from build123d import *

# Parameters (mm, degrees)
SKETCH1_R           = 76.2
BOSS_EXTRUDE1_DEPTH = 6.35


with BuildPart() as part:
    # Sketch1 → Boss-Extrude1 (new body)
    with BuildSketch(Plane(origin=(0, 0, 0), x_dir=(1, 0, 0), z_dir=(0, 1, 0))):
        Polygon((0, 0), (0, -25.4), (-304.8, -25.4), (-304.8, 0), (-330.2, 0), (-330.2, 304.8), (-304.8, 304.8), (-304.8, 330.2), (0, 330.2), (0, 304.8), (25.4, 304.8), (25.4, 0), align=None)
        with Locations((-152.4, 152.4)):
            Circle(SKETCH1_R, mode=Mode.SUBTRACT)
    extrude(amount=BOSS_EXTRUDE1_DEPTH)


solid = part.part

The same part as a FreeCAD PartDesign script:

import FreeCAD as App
import Part
import Sketcher

V = App.Vector
Q = App.Units.Quantity

doc = App.newDocument("Part")
body = doc.addObject("PartDesign::Body", "Body")

# Sketch on XZ plane
sketch1 = body.newObject("Sketcher::SketchObject", "Sketch")
sketch1.AttachmentSupport = (doc.getObject("XZ_Plane"), [""])
sketch1.MapMode = "FlatFace"
sketch1.addGeometry([
    Part.LineSegment(V(0, 25, 0), V(0, 0, 0)),  # 0
    Part.LineSegment(V(0, 0, 0), V(25, 0, 0)),  # 1
    Part.LineSegment(V(25, 0, 0), V(25, -305, 0)),  # 2
    Part.LineSegment(V(25, -305, 0), V(0, -305, 0)),  # 3
    Part.LineSegment(V(0, -305, 0), V(0, -330, 0)),  # 4
    Part.LineSegment(V(0, -330, 0), V(-305, -330, 0)),  # 5
    Part.LineSegment(V(-305, -330, 0), V(-305, -305, 0)),  # 6
    Part.LineSegment(V(-305, -305, 0), V(-330, -305, 0)),  # 7
    Part.LineSegment(V(-330, -305, 0), V(-330, 0, 0)),  # 8
    Part.LineSegment(V(-330, 0, 0), V(-305, 0, 0)),  # 9
    Part.LineSegment(V(-305, 0, 0), V(-305, 25, 0)),  # 10
    Part.LineSegment(V(-305, 25, 0), V(0, 25, 0)),  # 11
    Part.Circle(V(-152, -152, 0), V(0, 0, 1), 76),  # 12
], False)
sketch1.addConstraint([
    Sketcher.Constraint("Coincident", 0, 2, 1, 1),
    Sketcher.Constraint("Coincident", 1, 2, 2, 1),
    Sketcher.Constraint("Coincident", 2, 2, 3, 1),
    Sketcher.Constraint("Coincident", 3, 2, 4, 1),
    Sketcher.Constraint("Coincident", 4, 2, 5, 1),
    Sketcher.Constraint("Coincident", 5, 2, 6, 1),
    Sketcher.Constraint("Coincident", 6, 2, 7, 1),
    Sketcher.Constraint("Coincident", 7, 2, 8, 1),
    Sketcher.Constraint("Coincident", 8, 2, 9, 1),
    Sketcher.Constraint("Coincident", 9, 2, 10, 1),
    Sketcher.Constraint("Coincident", 10, 2, 11, 1),
    Sketcher.Constraint("Coincident", 11, 2, 0, 1),
    Sketcher.Constraint("Vertical", 0),
    Sketcher.Constraint("Horizontal", 1),
    Sketcher.Constraint("Vertical", 2),
    Sketcher.Constraint("Horizontal", 3),
    Sketcher.Constraint("Vertical", 4),
    Sketcher.Constraint("Horizontal", 5),
    Sketcher.Constraint("Vertical", 6),
    Sketcher.Constraint("Horizontal", 7),
    Sketcher.Constraint("Vertical", 8),
    Sketcher.Constraint("Horizontal", 9),
    Sketcher.Constraint("Vertical", 10),
    Sketcher.Constraint("Horizontal", 11),
    Sketcher.Constraint("Coincident", 0, 2, -1, 1),
    Sketcher.Constraint("PointOnObject", 3, 2, -2),
    Sketcher.Constraint("PointOnObject", 8, 2, -1),
    Sketcher.Constraint("Horizontal", 3, 2, 6, 2),
    Sketcher.Constraint("Vertical", 6, 2, 9, 2),
    Sketcher.Constraint("Equal", 3, 7),
    Sketcher.Constraint("Equal", 9, 0),
    Sketcher.Constraint("Equal", 11, 2),
    Sketcher.Constraint("Equal", 0, 4),
    Sketcher.Constraint("Diameter", 12, Q("6 in")),
    Sketcher.Constraint("DistanceX", 1, 1, 1, 2, Q("1 in")),
    Sketcher.Constraint("DistanceX", 5, 2, 5, 1, Q("12 in")),
    Sketcher.Constraint("DistanceX", 12, 3, -1, 1, Q("6 in")),
    Sketcher.Constraint("DistanceY", 12, 3, -1, 1, Q("6 in")),
])
pad1 = body.newObject("PartDesign::Pad", "Pad")
pad1.Profile = sketch1
pad1.Length = Q("0.25 in")
pad1.Reversed = True

doc.recompute()
